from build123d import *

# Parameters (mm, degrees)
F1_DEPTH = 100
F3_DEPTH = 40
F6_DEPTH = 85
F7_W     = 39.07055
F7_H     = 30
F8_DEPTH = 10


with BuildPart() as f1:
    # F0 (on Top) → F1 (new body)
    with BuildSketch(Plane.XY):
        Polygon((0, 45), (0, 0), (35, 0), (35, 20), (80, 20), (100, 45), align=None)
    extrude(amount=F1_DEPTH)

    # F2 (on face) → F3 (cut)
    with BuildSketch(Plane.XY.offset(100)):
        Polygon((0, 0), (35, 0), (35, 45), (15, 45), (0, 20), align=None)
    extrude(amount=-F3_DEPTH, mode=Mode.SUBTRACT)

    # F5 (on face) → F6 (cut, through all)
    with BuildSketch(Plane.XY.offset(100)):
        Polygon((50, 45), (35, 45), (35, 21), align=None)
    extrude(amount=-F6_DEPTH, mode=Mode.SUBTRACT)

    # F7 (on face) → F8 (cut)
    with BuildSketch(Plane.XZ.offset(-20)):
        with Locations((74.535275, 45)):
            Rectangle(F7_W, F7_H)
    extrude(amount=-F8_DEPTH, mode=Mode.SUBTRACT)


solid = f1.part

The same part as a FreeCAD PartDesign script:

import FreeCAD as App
import Part
import Sketcher
Q = App.Units.Quantity


def add_polygon(sketch, points):
    """Adds a closed chain of lines whose ends are joined by coincident constraints."""
    first, n = sketch.GeometryCount, len(points)
    for a, b in zip(points, points[1:] + points[:1]):
        sketch.addGeometry(Part.LineSegment(App.Vector(*a, 0), App.Vector(*b, 0)), False)
    for i in range(n):
        sketch.addConstraint(Sketcher.Constraint("Coincident", first + i, 2, first + (i + 1) % n, 1))

doc = App.newDocument("Part")
body = doc.addObject("PartDesign::Body", "Body")

# Sketch on XY plane
sketch1 = body.newObject("Sketcher::SketchObject", "Sketch")
sketch1.AttachmentSupport = (doc.getObject("XY_Plane"), [""])
sketch1.MapMode = "FlatFace"
add_polygon(sketch1, [(0, 45), (0, 0), (35, 0), (35, 20), (80, 20), (100, 45)])  # lines 0-5
sketch1.addConstraint(Sketcher.Constraint("Vertical", 0))
sketch1.addConstraint(Sketcher.Constraint("Horizontal", 1))
sketch1.addConstraint(Sketcher.Constraint("Vertical", 2))
sketch1.addConstraint(Sketcher.Constraint("Horizontal", 3))
sketch1.addConstraint(Sketcher.Constraint("Horizontal", 5))
sketch1.addConstraint(Sketcher.Constraint("Coincident", 0, 2, -1, 1))
sketch1.addConstraint(Sketcher.Constraint("Equal", 3, 0))
sketch1.addConstraint(Sketcher.Constraint("DistanceX", 1, 1, 1, 2, Q("35 mm")))
sketch1.addConstraint(Sketcher.Constraint("DistanceX", 3, 1, 3, 2, Q("45 mm")))
sketch1.addConstraint(Sketcher.Constraint("DistanceX", 5, 2, 5, 1, Q("100 mm")))
sketch1.addConstraint(Sketcher.Constraint("DistanceY", 2, 1, 2, 2, Q("20 mm")))
pad1 = body.newObject("PartDesign::Pad", "Pad")
pad1.Profile = sketch1
pad1.Length = 100

# Sketch on XY plane
sketch2 = body.newObject("Sketcher::SketchObject", "Sketch001")
sketch2.AttachmentSupport = (doc.getObject("XY_Plane"), [""])
sketch2.MapMode = "FlatFace"
sketch2.AttachmentOffset = App.Placement(App.Vector(0, 0, 100), App.Rotation())
add_polygon(sketch2, [(0, 0), (35, 0), (35, 45), (15, 45), (0, 20)])  # lines 0-4
sketch2.addConstraint(Sketcher.Constraint("Horizontal", 0))
sketch2.addConstraint(Sketcher.Constraint("Vertical", 1))
sketch2.addConstraint(Sketcher.Constraint("Horizontal", 2))
sketch2.addConstraint(Sketcher.Constraint("Vertical", 4))
sketch2.addConstraint(Sketcher.Constraint("Coincident", 4, 2, -1, 1))
sketch2.addConstraint(Sketcher.Constraint("Equal", 2, 4))
sketch2.addConstraint(Sketcher.Constraint("DistanceX", 0, 1, 0, 2, Q("35 mm")))
sketch2.addConstraint(Sketcher.Constraint("DistanceX", 2, 2, 2, 1, Q("20 mm")))
sketch2.addConstraint(Sketcher.Constraint("DistanceY", 1, 1, 1, 2, Q("45 mm")))
pocket1 = body.newObject("PartDesign::Pocket", "Pocket")
pocket1.Profile = sketch2
pocket1.Length = 40

# Sketch on XY plane
sketch3 = body.newObject("Sketcher::SketchObject", "Sketch002")
sketch3.AttachmentSupport = (doc.getObject("XY_Plane"), [""])
sketch3.MapMode = "FlatFace"
sketch3.AttachmentOffset = App.Placement(App.Vector(0, 0, 100), App.Rotation())
add_polygon(sketch3, [(50, 45), (35, 45), (35, 21)])  # lines 0-2
sketch3.addConstraint(Sketcher.Constraint("Horizontal", 0))
sketch3.addConstraint(Sketcher.Constraint("Vertical", 1))
sketch3.addConstraint(Sketcher.Constraint("DistanceX", 0, 2, 0, 1, Q("15 mm")))
sketch3.addConstraint(Sketcher.Constraint("DistanceY", 1, 2, 1, 1, Q("24 mm")))
sketch3.addConstraint(Sketcher.Constraint("DistanceX", -1, 1, 0, 2, Q("35 mm")))
sketch3.addConstraint(Sketcher.Constraint("DistanceY", -1, 1, 0, 2, Q("45 mm")))
pocket2 = body.newObject("PartDesign::Pocket", "Pocket001")
pocket2.Profile = sketch3
pocket2.Length = 85

# Sketch on XZ plane
sketch4 = body.newObject("Sketcher::SketchObject", "Sketch003")
sketch4.AttachmentSupport = (doc.getObject("XZ_Plane"), [""])
sketch4.MapMode = "FlatFace"
sketch4.AttachmentOffset = App.Placement(App.Vector(0, 0, -20), App.Rotation())
add_polygon(sketch4, [(55, 60), (55, 30), (94, 30), (94, 60)])  # lines 0-3
sketch4.addConstraint(Sketcher.Constraint("Vertical", 0))
sketch4.addConstraint(Sketcher.Constraint("Horizontal", 1))
sketch4.addConstraint(Sketcher.Constraint("Vertical", 2))
sketch4.addConstraint(Sketcher.Constraint("Horizontal", 3))
sketch4.addConstraint(Sketcher.Constraint("DistanceY", 0, 2, 0, 1, Q("30 mm")))
sketch4.addConstraint(Sketcher.Constraint("DistanceX", -1, 1, 0, 2, Q("55 mm")))
sketch4.addConstraint(Sketcher.Constraint("DistanceY", -1, 1, 0, 2, Q("30 mm")))
sketch4.addConstraint(Sketcher.Constraint("DistanceX", 1, 1, 1, 2, Q("39.07055 mm")))
pocket3 = body.newObject("PartDesign::Pocket", "Pocket002")
pocket3.Profile = sketch4
pocket3.Length = 10

doc.recompute()
